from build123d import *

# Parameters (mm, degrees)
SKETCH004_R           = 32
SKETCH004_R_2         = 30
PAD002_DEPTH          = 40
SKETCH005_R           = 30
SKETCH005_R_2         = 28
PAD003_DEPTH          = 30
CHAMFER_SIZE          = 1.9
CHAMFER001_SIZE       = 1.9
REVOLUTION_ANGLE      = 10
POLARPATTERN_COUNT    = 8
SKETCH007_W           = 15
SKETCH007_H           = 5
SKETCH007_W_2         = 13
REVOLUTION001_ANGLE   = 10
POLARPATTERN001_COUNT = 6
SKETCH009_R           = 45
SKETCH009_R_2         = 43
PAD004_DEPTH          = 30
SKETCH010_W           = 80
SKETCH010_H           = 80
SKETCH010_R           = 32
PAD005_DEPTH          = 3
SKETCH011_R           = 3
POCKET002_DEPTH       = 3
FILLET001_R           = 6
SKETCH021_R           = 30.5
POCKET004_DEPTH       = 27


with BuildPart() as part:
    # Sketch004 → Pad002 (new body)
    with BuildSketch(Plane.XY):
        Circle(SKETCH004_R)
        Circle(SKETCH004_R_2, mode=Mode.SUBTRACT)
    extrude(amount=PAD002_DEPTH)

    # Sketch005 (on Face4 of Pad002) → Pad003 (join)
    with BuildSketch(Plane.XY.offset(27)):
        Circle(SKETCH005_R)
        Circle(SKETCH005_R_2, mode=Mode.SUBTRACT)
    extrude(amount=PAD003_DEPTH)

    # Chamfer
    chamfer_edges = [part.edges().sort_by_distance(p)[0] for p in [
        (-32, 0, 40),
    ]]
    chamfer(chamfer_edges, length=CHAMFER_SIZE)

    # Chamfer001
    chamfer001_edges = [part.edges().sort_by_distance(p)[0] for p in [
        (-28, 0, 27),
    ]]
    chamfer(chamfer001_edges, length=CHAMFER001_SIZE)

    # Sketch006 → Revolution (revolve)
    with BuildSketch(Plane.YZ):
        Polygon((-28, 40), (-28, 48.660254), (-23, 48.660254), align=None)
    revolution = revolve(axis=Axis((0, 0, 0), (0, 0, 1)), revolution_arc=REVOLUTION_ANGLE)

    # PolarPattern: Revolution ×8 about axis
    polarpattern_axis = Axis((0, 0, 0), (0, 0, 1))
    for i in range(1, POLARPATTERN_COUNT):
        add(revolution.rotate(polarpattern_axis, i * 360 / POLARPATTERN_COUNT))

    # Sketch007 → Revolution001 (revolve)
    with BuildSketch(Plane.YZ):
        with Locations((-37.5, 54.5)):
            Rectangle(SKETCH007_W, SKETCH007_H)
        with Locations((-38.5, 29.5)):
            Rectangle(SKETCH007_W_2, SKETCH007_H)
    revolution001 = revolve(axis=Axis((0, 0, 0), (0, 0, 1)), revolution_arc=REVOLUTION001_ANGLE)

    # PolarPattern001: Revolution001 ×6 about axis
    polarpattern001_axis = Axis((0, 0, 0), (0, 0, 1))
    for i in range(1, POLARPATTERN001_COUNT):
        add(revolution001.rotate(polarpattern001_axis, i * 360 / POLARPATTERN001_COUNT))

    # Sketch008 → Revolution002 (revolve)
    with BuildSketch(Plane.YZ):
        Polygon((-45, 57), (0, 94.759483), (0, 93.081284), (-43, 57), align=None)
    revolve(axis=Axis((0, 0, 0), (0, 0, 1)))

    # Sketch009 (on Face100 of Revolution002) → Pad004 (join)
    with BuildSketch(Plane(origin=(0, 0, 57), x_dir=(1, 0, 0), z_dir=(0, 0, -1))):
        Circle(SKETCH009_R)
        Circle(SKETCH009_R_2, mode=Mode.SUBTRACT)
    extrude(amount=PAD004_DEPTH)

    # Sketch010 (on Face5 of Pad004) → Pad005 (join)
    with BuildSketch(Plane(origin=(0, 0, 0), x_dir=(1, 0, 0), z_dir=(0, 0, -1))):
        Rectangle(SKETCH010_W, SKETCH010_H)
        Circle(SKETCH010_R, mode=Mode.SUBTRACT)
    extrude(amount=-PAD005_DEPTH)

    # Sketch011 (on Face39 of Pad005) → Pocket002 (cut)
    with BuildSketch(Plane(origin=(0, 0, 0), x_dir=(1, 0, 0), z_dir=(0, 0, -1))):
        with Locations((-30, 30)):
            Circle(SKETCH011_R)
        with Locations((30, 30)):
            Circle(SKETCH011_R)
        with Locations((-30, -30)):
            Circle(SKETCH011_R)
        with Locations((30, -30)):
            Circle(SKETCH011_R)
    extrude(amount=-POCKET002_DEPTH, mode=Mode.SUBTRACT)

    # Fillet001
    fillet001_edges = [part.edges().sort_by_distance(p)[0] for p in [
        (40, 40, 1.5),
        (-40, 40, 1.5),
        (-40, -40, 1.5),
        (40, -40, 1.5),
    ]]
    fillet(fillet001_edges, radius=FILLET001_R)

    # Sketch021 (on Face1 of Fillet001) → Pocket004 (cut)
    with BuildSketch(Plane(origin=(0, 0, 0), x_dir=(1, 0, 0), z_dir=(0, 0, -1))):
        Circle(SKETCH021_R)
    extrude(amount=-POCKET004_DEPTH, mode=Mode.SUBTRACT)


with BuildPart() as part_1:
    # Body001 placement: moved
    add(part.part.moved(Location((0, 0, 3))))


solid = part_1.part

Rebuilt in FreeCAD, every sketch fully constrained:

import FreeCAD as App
import Part
import Sketcher
Q = App.Units.Quantity


def edges_at(feature, points):
    """Names of the edges that pass closest to the given points."""
    edges = feature.Shape.Edges
    near = lambda p: min(range(len(edges)), key=lambda i: edges[i].distToShape(Part.Vertex(*p))[0])
    return sorted({f"Edge{near(p) + 1}" for p in points})

doc = App.newDocument("Part")
body = doc.addObject("PartDesign::Body", "Body")

# Sketch on XY plane
sketch1 = doc.addObject("Sketcher::SketchObject", "Sketch")
body.addObject(sketch1)
sketch1.AttachmentSupport = (doc.XY_Plane, [""])
sketch1.MapMode = "FlatFace"
sketch1.addGeometry(Part.Circle(App.Vector(0, 0, 0), App.Vector(0, 0, 1), 32), False)
sketch1.addGeometry(Part.Circle(App.Vector(0, 0, 0), App.Vector(0, 0, 1), 30), False)
sketch1.addConstraint(Sketcher.Constraint("Coincident", 0, 3, -1, 1))
sketch1.addConstraint(Sketcher.Constraint("Coincident", 1, 3, -1, 1))
sketch1.addConstraint(Sketcher.Constraint("Diameter", 0, 64.0))
sketch1.addConstraint(Sketcher.Constraint("Diameter", 1, 60.0))
pad1 = doc.addObject("PartDesign::Pad", "Pad")
body.addObject(pad1)
pad1.Profile = sketch1
pad1.Length = 40

# Sketch on XY plane
sketch2 = doc.addObject("Sketcher::SketchObject", "Sketch001")
body.addObject(sketch2)
sketch2.AttachmentSupport = (doc.XY_Plane, [""])
sketch2.MapMode = "FlatFace"
sketch2.AttachmentOffset = App.Placement(App.Vector(0, 0, 27), App.Rotation())
sketch2.addGeometry(Part.Circle(App.Vector(0, 0, 0), App.Vector(0, 0, 1), 30), False)
sketch2.addGeometry(Part.Circle(App.Vector(0, 0, 0), App.Vector(0, 0, 1), 28), False)
sketch2.addConstraint(Sketcher.Constraint("Coincident", 0, 3, -1, 1))
sketch2.addConstraint(Sketcher.Constraint("Coincident", 1, 3, -1, 1))
sketch2.addConstraint(Sketcher.Constraint("Diameter", 0, 60.0))
sketch2.addConstraint(Sketcher.Constraint("Diameter", 1, 56.0))
pad2 = doc.addObject("PartDesign::Pad", "Pad001")
body.addObject(pad2)
pad2.Profile = sketch2
pad2.Length = 30
doc.recompute()

chamfer = doc.addObject("PartDesign::Chamfer", "Chamfer")
body.addObject(chamfer)
chamfer.Base = (pad2, edges_at(pad2, [(-32, 0, 40)]))
chamfer.Size = 1.9
doc.recompute()

chamfer2 = doc.addObject("PartDesign::Chamfer", "Chamfer001")
body.addObject(chamfer2)
chamfer2.Base = (chamfer, edges_at(chamfer, [(-28, 0, 27)]))
chamfer2.Size = 1.9

# Sketch on YZ plane
sketch3 = doc.addObject("Sketcher::SketchObject", "Sketch002")
body.addObject(sketch3)
sketch3.AttachmentSupport = (doc.YZ_Plane, [""])
sketch3.MapMode = "FlatFace"
sketch3.addGeometry(Part.LineSegment(App.Vector(-28, 49, 0), App.Vector(-28, 40, 0)), False)
sketch3.addGeometry(Part.LineSegment(App.Vector(-28, 40, 0), App.Vector(-23, 49, 0)), False)
sketch3.addGeometry(Part.LineSegment(App.Vector(-23, 49, 0), App.Vector(-28, 49, 0)), False)
sketch3.addConstraint(Sketcher.Constraint("Coincident", 0, 2, 1, 1))
sketch3.addConstraint(Sketcher.Constraint("Coincident", 1, 2, 2, 1))
sketch3.addConstraint(Sketcher.Constraint("Coincident", 2, 2, 0, 1))
sketch3.addConstraint(Sketcher.Constraint("Vertical", 0))
sketch3.addConstraint(Sketcher.Constraint("Horizontal", 2))
sketch3.addConstraint(Sketcher.Constraint("DistanceX", 2, 2, 2, 1, 5.0))
sketch3.addConstraint(Sketcher.Constraint("Angle", 1, Q("60 deg")))
sketch3.addConstraint(Sketcher.Constraint("DistanceX", 0, 2, -1, 1, 28.0))
sketch3.addConstraint(Sketcher.Constraint("DistanceY", -1, 1, 0, 2, 40.0))
revolution = doc.addObject("PartDesign::Revolution", "Revolution")
body.addObject(revolution)
revolution.Profile = sketch3
revolution.ReferenceAxis = (sketch3, ["V_Axis"])
revolution.Angle = 10
doc.recompute()

polarpattern = doc.addObject("PartDesign::PolarPattern", "PolarPattern")
body.addObject(polarpattern)
polarpattern.Originals = [revolution]
polarpattern.Axis = (doc.Z_Axis, [""])
polarpattern.Angle = 360
polarpattern.Occurrences = 8
body.Tip = polarpattern

# Sketch on YZ plane
sketch4 = doc.addObject("Sketcher::SketchObject", "Sketch003")
body.addObject(sketch4)
sketch4.AttachmentSupport = (doc.YZ_Plane, [""])
sketch4.MapMode = "FlatFace"
sketch4.addGeometry(Part.LineSegment(App.Vector(-45, 57, 0), App.Vector(-45, 52, 0)), False)
sketch4.addGeometry(Part.LineSegment(App.Vector(-45, 52, 0), App.Vector(-30, 52, 0)), False)
sketch4.addGeometry(Part.LineSegment(App.Vector(-30, 52, 0), App.Vector(-30, 57, 0)), False)
sketch4.addGeometry(Part.LineSegment(App.Vector(-30, 57, 0), App.Vector(-45, 57, 0)), False)
sketch4.addGeometry(Part.LineSegment(App.Vector(-45, 32, 0), App.Vector(-45, 27, 0)), False)
sketch4.addGeometry(Part.LineSegment(App.Vector(-45, 27, 0), App.Vector(-32, 27, 0)), False)
sketch4.addGeometry(Part.LineSegment(App.Vector(-32, 27, 0), App.Vector(-32, 32, 0)), False)
sketch4.addGeometry(Part.LineSegment(App.Vector(-32, 32, 0), App.Vector(-45, 32, 0)), False)
sketch4.addConstraint(Sketcher.Constraint("Coincident", 0, 2, 1, 1))
sketch4.addConstraint(Sketcher.Constraint("Coincident", 1, 2, 2, 1))
sketch4.addConstraint(Sketcher.Constraint("Coincident", 2, 2, 3, 1))
sketch4.addConstraint(Sketcher.Constraint("Coincident", 3, 2, 0, 1))
sketch4.addConstraint(Sketcher.Constraint("Coincident", 4, 2, 5, 1))
sketch4.addConstraint(Sketcher.Constraint("Coincident", 5, 2, 6, 1))
sketch4.addConstraint(Sketcher.Constraint("Coincident", 6, 2, 7, 1))
sketch4.addConstraint(Sketcher.Constraint("Coincident", 7, 2, 4, 1))
sketch4.addConstraint(Sketcher.Constraint("Vertical", 0))
sketch4.addConstraint(Sketcher.Constraint("Horizontal", 1))
sketch4.addConstraint(Sketcher.Constraint("Vertical", 2))
sketch4.addConstraint(Sketcher.Constraint("Horizontal", 3))
sketch4.addConstraint(Sketcher.Constraint("Vertical", 4))
sketch4.addConstraint(Sketcher.Constraint("Horizontal", 5))
sketch4.addConstraint(Sketcher.Constraint("Vertical", 6))
sketch4.addConstraint(Sketcher.Constraint("Horizontal", 7))
sketch4.addConstraint(Sketcher.Constraint("Vertical", 3, 2, 4, 2))
sketch4.addConstraint(Sketcher.Constraint("Equal", 2, 4))
sketch4.addConstraint(Sketcher.Constraint("DistanceX", 1, 1, 1, 2, 15.0))
sketch4.addConstraint(Sketcher.Constraint("DistanceX", 5, 1, 5, 2, 13.0))
sketch4.addConstraint(Sketcher.Constraint("DistanceY", 0, 2, 0, 1, 5.0))
sketch4.addConstraint(Sketcher.Constraint("DistanceX", 0, 2, -1, 1, 45.0))
sketch4.addConstraint(Sketcher.Constraint("DistanceY", -1, 1, 0, 2, 52.0))
sketch4.addConstraint(Sketcher.Constraint("DistanceY", -1, 1, 4, 2, 27.0))
revolution2 = doc.addObject("PartDesign::Revolution", "Revolution001")
body.addObject(revolution2)
revolution2.Profile = sketch4
revolution2.ReferenceAxis = (sketch4, ["V_Axis"])
revolution2.Angle = 10
doc.recompute()

polarpattern2 = doc.addObject("PartDesign::PolarPattern", "PolarPattern001")
body.addObject(polarpattern2)
polarpattern2.Originals = [revolution2]
polarpattern2.Axis = (doc.Z_Axis, [""])
polarpattern2.Angle = 360
polarpattern2.Occurrences = 6
body.Tip = polarpattern2

# Sketch on YZ plane
sketch5 = doc.addObject("Sketcher::SketchObject", "Sketch004")
body.addObject(sketch5)
sketch5.AttachmentSupport = (doc.YZ_Plane, [""])
sketch5.MapMode = "FlatFace"
sketch5.addGeometry(Part.LineSegment(App.Vector(0, 94.8, 0), App.Vector(-45, 57, 0)), False)
sketch5.addGeometry(Part.LineSegment(App.Vector(-45, 57, 0), App.Vector(-43, 57, 0)), False)
sketch5.addGeometry(Part.LineSegment(App.Vector(-43, 57, 0), App.Vector(0, 93.1, 0)), False)
sketch5.addGeometry(Part.LineSegment(App.Vector(0, 93.1, 0), App.Vector(0, 94.8, 0)), False)
sketch5.addConstraint(Sketcher.Constraint("Coincident", 0, 2, 1, 1))
sketch5.addConstraint(Sketcher.Constraint("Coincident", 1, 2, 2, 1))
sketch5.addConstraint(Sketcher.Constraint("Coincident", 2, 2, 3, 1))
sketch5.addConstraint(Sketcher.Constraint("Coincident", 3, 2, 0, 1))
sketch5.addConstraint(Sketcher.Constraint("Horizontal", 1))
sketch5.addConstraint(Sketcher.Constraint("Vertical", 3))
sketch5.addConstraint(Sketcher.Constraint("PointOnObject", 2, 2, -2))
sketch5.addConstraint(Sketcher.Constraint("Parallel", 0, 2))
sketch5.addConstraint(Sketcher.Constraint("DistanceX", 1, 1, 1, 2, 2.0))
sketch5.addConstraint(Sketcher.Constraint("Angle", 0, Q("-140 deg")))
sketch5.addConstraint(Sketcher.Constraint("DistanceX", 0, 2, -1, 1, 45.0))
sketch5.addConstraint(Sketcher.Constraint("DistanceY", -1, 1, 0, 2, 57.0))
revolution3 = doc.addObject("PartDesign::Revolution", "Revolution002")
body.addObject(revolution3)
revolution3.Profile = sketch5
revolution3.ReferenceAxis = (sketch5, ["V_Axis"])
revolution3.Angle = 360

# Sketch on XY plane
sketch6 = doc.addObject("Sketcher::SketchObject", "Sketch005")
body.addObject(sketch6)
sketch6.AttachmentSupport = (doc.XY_Plane, [""])
sketch6.MapMode = "FlatFace"
sketch6.AttachmentOffset = App.Placement(App.Vector(0, 0, 57), App.Rotation())
sketch6.addGeometry(Part.Circle(App.Vector(0, 0, 0), App.Vector(0, 0, 1), 45), False)
sketch6.addGeometry(Part.Circle(App.Vector(0, 0, 0), App.Vector(0, 0, 1), 43), False)
sketch6.addConstraint(Sketcher.Constraint("Coincident", 0, 3, -1, 1))
sketch6.addConstraint(Sketcher.Constraint("Coincident", 1, 3, -1, 1))
sketch6.addConstraint(Sketcher.Constraint("Diameter", 0, 90.0))
sketch6.addConstraint(Sketcher.Constraint("Diameter", 1, 86.0))
pad3 = doc.addObject("PartDesign::Pad", "Pad002")
body.addObject(pad3)
pad3.Profile = sketch6
pad3.Length = 30
pad3.Reversed = True

# Sketch on XY plane
sketch7 = doc.addObject("Sketcher::SketchObject", "Sketch006")
body.addObject(sketch7)
sketch7.AttachmentSupport = (doc.XY_Plane, [""])
sketch7.MapMode = "FlatFace"
sketch7.addGeometry(Part.LineSegment(App.Vector(-40, -40, 0), App.Vector(-40, 40, 0)), False)
sketch7.addGeometry(Part.LineSegment(App.Vector(-40, 40, 0), App.Vector(40, 40, 0)), False)
sketch7.addGeometry(Part.LineSegment(App.Vector(40, 40, 0), App.Vector(40, -40, 0)), False)
sketch7.addGeometry(Part.LineSegment(App.Vector(40, -40, 0), App.Vector(-40, -40, 0)), False)
sketch7.addGeometry(Part.Circle(App.Vector(0, 0, 0), App.Vector(0, 0, 1), 32), False)
sketch7.addConstraint(Sketcher.Constraint("Coincident", 0, 2, 1, 1))
sketch7.addConstraint(Sketcher.Constraint("Coincident", 1, 2, 2, 1))
sketch7.addConstraint(Sketcher.Constraint("Coincident", 2, 2, 3, 1))
sketch7.addConstraint(Sketcher.Constraint("Coincident", 3, 2, 0, 1))
sketch7.addConstraint(Sketcher.Constraint("Vertical", 0))
sketch7.addConstraint(Sketcher.Constraint("Horizontal", 1))
sketch7.addConstraint(Sketcher.Constraint("Vertical", 2))
sketch7.addConstraint(Sketcher.Constraint("Horizontal", 3))
sketch7.addConstraint(Sketcher.Constraint("Coincident", 4, 3, -1, 1))
sketch7.addConstraint(Sketcher.Constraint("Symmetric", 0, 2, 2, 2, -1, 1))
sketch7.addConstraint(Sketcher.Constraint("Equal", 3, 0))
sketch7.addConstraint(Sketcher.Constraint("Diameter", 4, 64.0))
sketch7.addConstraint(Sketcher.Constraint("DistanceX", 1, 1, 1, 2, 80.0))
pad4 = doc.addObject("PartDesign::Pad", "Pad003")
body.addObject(pad4)
pad4.Profile = sketch7
pad4.Length = 3

# Sketch on XY plane
sketch8 = doc.addObject("Sketcher::SketchObject", "Sketch007")
body.addObject(sketch8)
sketch8.AttachmentSupport = (doc.XY_Plane, [""])
sketch8.MapMode = "FlatFace"
sketch8.addGeometry(Part.Circle(App.Vector(-30, -30, 0), App.Vector(0, 0, 1), 3), False)
sketch8.addGeometry(Part.Circle(App.Vector(30, -30, 0), App.Vector(0, 0, 1), 3), False)
sketch8.addGeometry(Part.Circle(App.Vector(-30, 30, 0), App.Vector(0, 0, 1), 3), False)
sketch8.addGeometry(Part.Circle(App.Vector(30, 30, 0), App.Vector(0, 0, 1), 3), False)
sketch8.addConstraint(Sketcher.Constraint("Equal", 0, 1))
sketch8.addConstraint(Sketcher.Constraint("Equal", 1, 2))
sketch8.addConstraint(Sketcher.Constraint("Equal", 2, 3))
sketch8.addConstraint(Sketcher.Constraint("Symmetric", 1, 3, 2, 3, -1, 1))
sketch8.addConstraint(Sketcher.Constraint("Symmetric", 0, 3, 3, 3, -1, 1))
sketch8.addConstraint(Sketcher.Constraint("Symmetric", 0, 3, 1, 3, -2))
sketch8.addConstraint(Sketcher.Constraint("Diameter", 0, 6.0))
sketch8.addConstraint(Sketcher.Constraint("DistanceX", 0, 3, -1, 1, 30.0))
sketch8.addConstraint(Sketcher.Constraint("DistanceY", 0, 3, -1, 1, 30.0))
pocket1 = doc.addObject("PartDesign::Pocket", "Pocket")
body.addObject(pocket1)
pocket1.Profile = sketch8
pocket1.Length = 3
pocket1.Reversed = True
doc.recompute()

fillet = doc.addObject("PartDesign::Fillet", "Fillet")
body.addObject(fillet)
fillet.Base = (pocket1, edges_at(pocket1, [
    (40, 40, 1.5),
    (-40, 40, 1.5),
    (-40, -40, 1.5),
    (40, -40, 1.5),
]))
fillet.Radius = 6

# Sketch on XY plane
sketch9 = doc.addObject("Sketcher::SketchObject", "Sketch008")
body.addObject(sketch9)
sketch9.AttachmentSupport = (doc.XY_Plane, [""])
sketch9.MapMode = "FlatFace"
sketch9.addGeometry(Part.Circle(App.Vector(0, 0, 0), App.Vector(0, 0, 1), 30), False)
sketch9.addConstraint(Sketcher.Constraint("Coincident", 0, 3, -1, 1))
sketch9.addConstraint(Sketcher.Constraint("Diameter", 0, 61.0))
pocket2 = doc.addObject("PartDesign::Pocket", "Pocket001")
body.addObject(pocket2)
pocket2.Profile = sketch9
pocket2.Length = 27
pocket2.Reversed = True
body2 = doc.addObject("PartDesign::Body", "Body001")
doc.recompute()

body.Placement = App.Placement(App.Vector(0, 0, 3), App.Rotation(App.Vector(0, 0, 1), 0))
boolean = doc.addObject("PartDesign::Boolean", "Boolean")
body2.addObject(boolean)
boolean.Type = "Fuse"
boolean.addObjects([body])

doc.recompute()
